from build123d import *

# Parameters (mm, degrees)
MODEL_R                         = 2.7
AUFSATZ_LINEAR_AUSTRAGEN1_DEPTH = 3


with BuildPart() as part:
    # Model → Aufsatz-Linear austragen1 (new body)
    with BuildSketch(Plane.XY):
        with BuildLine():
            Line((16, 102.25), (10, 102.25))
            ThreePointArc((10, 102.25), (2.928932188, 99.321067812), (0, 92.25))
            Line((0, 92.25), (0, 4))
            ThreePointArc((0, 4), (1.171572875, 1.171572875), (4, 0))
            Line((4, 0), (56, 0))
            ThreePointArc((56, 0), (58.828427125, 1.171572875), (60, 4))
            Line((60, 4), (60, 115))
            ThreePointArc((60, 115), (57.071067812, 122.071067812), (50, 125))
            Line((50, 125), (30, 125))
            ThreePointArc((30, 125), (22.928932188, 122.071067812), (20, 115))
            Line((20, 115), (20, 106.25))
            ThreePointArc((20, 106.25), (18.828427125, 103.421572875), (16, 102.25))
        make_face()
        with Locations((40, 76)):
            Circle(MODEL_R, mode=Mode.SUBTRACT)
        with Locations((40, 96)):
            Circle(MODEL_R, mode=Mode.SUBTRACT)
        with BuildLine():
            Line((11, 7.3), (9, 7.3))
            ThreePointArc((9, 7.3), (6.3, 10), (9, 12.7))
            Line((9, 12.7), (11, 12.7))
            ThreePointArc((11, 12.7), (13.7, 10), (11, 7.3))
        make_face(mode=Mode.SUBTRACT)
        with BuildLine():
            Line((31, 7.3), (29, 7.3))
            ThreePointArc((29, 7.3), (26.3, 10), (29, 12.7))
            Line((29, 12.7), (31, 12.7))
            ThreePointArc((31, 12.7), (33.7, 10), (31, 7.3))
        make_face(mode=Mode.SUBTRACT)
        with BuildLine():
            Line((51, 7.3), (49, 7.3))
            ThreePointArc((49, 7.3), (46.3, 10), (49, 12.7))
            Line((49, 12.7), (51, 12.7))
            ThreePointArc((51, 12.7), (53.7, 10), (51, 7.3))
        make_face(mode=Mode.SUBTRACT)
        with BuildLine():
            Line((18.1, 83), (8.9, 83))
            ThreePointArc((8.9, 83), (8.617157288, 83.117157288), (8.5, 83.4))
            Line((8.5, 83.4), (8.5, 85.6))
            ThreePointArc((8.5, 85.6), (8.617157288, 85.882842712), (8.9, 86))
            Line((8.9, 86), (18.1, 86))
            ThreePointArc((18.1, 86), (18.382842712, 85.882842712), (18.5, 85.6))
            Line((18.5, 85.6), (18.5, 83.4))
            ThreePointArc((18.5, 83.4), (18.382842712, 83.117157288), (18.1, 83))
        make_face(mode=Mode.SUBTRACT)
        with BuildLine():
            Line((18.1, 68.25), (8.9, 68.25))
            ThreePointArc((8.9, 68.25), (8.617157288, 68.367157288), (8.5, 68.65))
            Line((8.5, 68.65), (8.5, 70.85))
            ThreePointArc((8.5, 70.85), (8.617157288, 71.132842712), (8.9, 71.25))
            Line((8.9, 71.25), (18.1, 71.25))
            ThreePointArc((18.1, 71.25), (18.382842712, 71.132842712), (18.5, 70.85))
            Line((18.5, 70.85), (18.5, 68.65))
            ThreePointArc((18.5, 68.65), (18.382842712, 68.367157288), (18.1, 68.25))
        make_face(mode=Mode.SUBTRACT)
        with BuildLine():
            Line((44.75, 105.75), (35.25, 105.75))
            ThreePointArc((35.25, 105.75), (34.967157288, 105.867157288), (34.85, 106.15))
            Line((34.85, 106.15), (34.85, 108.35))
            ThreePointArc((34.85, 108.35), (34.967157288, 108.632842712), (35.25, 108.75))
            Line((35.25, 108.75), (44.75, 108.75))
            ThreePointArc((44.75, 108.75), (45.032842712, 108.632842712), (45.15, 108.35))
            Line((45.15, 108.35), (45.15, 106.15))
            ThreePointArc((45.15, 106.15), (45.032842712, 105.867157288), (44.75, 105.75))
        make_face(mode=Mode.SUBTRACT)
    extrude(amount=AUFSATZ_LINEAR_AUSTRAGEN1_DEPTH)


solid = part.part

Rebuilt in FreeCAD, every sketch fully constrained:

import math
import FreeCAD as App
import Part
import Sketcher

V = App.Vector

doc = App.newDocument("Part")
body = doc.addObject("PartDesign::Body", "Body")

# Sketch on XY plane
sketch1 = body.newObject("Sketcher::SketchObject", "Sketch")
sketch1.AttachmentSupport = (doc.getObject("XY_Plane"), [""])
sketch1.MapMode = "FlatFace"
sketch1.addGeometry([
    Part.LineSegment(V(16, 102.25, 0), V(10, 102.25, 0)),  # 0
    Part.ArcOfCircle(Part.Circle(V(10, 92.25, 0), V(0, 0, 1), 10), math.radians(90), math.radians(180)),  # 1
    Part.LineSegment(V(0, 92.25, 0), V(0, 4, 0)),  # 2
    Part.ArcOfCircle(Part.Circle(V(4, 4, 0), V(0, 0, 1), 4), math.radians(180), math.radians(270)),  # 3
    Part.LineSegment(V(4, 0, 0), V(56, 0, 0)),  # 4
    Part.ArcOfCircle(Part.Circle(V(56, 4, 0), V(0, 0, 1), 4), math.radians(-90), math.radians(0)),  # 5
    Part.LineSegment(V(60, 4, 0), V(60, 115, 0)),  # 6
    Part.ArcOfCircle(Part.Circle(V(50, 115, 0), V(0, 0, 1), 10), math.radians(0), math.radians(90)),  # 7
    Part.LineSegment(V(50, 125, 0), V(30, 125, 0)),  # 8
    Part.ArcOfCircle(Part.Circle(V(30, 115, 0), V(0, 0, 1), 10), math.radians(90), math.radians(180)),  # 9
    Part.LineSegment(V(20, 115, 0), V(20, 106.25, 0)),  # 10
    Part.ArcOfCircle(Part.Circle(V(16, 106.25, 0), V(0, 0, 1), 4), math.radians(-90), math.radians(0)),  # 11
    Part.ArcOfCircle(Part.Circle(V(11, 10, 0), V(0, 0, 1), 2.7), math.radians(-90), math.radians(90)),  # 12
    Part.LineSegment(V(11, 7.3, 0), V(9, 7.3, 0)),  # 13
    Part.ArcOfCircle(Part.Circle(V(9, 10, 0), V(0, 0, 1), 2.7), math.radians(90), math.radians(270)),  # 14
    Part.LineSegment(V(9, 12.7, 0), V(11, 12.7, 0)),  # 15
    Part.ArcOfCircle(Part.Circle(V(31, 10, 0), V(0, 0, 1), 2.7), math.radians(-90), math.radians(90)),  # 16
    Part.LineSegment(V(31, 7.3, 0), V(29, 7.3, 0)),  # 17
    Part.ArcOfCircle(Part.Circle(V(29, 10, 0), V(0, 0, 1), 2.7), math.radians(90), math.radians(270)),  # 18
    Part.LineSegment(V(29, 12.7, 0), V(31, 12.7, 0)),  # 19
    Part.ArcOfCircle(Part.Circle(V(51, 10, 0), V(0, 0, 1), 2.7), math.radians(-90), math.radians(90)),  # 20
    Part.LineSegment(V(51, 7.3, 0), V(49, 7.3, 0)),  # 21
    Part.ArcOfCircle(Part.Circle(V(49, 10, 0), V(0, 0, 1), 2.7), math.radians(90), math.radians(270)),  # 22
    Part.LineSegment(V(49, 12.7, 0), V(51, 12.7, 0)),  # 23
    Part.ArcOfCircle(Part.Circle(V(18.1, 68.65, 0), V(0, 0, 1), 0.4), math.radians(-90), math.radians(0)),  # 24
    Part.LineSegment(V(18.1, 68.25, 0), V(8.9, 68.25, 0)),  # 25
    Part.ArcOfCircle(Part.Circle(V(8.9, 68.65, 0), V(0, 0, 1), 0.4), math.radians(-180), math.radians(-90)),  # 26
    Part.LineSegment(V(8.5, 68.65, 0), V(8.5, 70.85, 0)),  # 27
    Part.ArcOfCircle(Part.Circle(V(8.9, 70.85, 0), V(0, 0, 1), 0.4), math.radians(90), math.radians(180)),  # 28
    Part.LineSegment(V(8.9, 71.25, 0), V(18.1, 71.25, 0)),  # 29
    Part.ArcOfCircle(Part.Circle(V(18.1, 70.85, 0), V(0, 0, 1), 0.4), math.radians(0), math.radians(90)),  # 30
    Part.LineSegment(V(18.5, 70.85, 0), V(18.5, 68.65, 0)),  # 31
    Part.ArcOfCircle(Part.Circle(V(18.1, 83.4, 0), V(0, 0, 1), 0.4), math.radians(-90), math.radians(0)),  # 32
    Part.LineSegment(V(18.1, 83, 0), V(8.9, 83, 0)),  # 33
    Part.ArcOfCircle(Part.Circle(V(8.9, 83.4, 0), V(0, 0, 1), 0.4), math.radians(-180), math.radians(-90)),  # 34
    Part.LineSegment(V(8.5, 83.4, 0), V(8.5, 85.6, 0)),  # 35
    Part.ArcOfCircle(Part.Circle(V(8.9, 85.6, 0), V(0, 0, 1), 0.4), math.radians(90), math.radians(180)),  # 36
    Part.LineSegment(V(8.9, 86, 0), V(18.1, 86, 0)),  # 37
    Part.ArcOfCircle(Part.Circle(V(18.1, 85.6, 0), V(0, 0, 1), 0.4), math.radians(0), math.radians(90)),  # 38
    Part.LineSegment(V(18.5, 85.6, 0), V(18.5, 83.4, 0)),  # 39
    Part.Circle(V(40, 76, 0), V(0, 0, 1), 2.7),  # 40
    Part.Circle(V(40, 96, 0), V(0, 0, 1), 2.7),  # 41
    Part.ArcOfCircle(Part.Circle(V(44.75, 106.15, 0), V(0, 0, 1), 0.4), math.radians(-90), math.radians(0)),  # 42
    Part.LineSegment(V(44.75, 105.75, 0), V(35.25, 105.75, 0)),  # 43
    Part.ArcOfCircle(Part.Circle(V(35.25, 106.15, 0), V(0, 0, 1), 0.4), math.radians(-180), math.radians(-90)),  # 44
    Part.LineSegment(V(34.85, 106.15, 0), V(34.85, 108.35, 0)),  # 45
    Part.ArcOfCircle(Part.Circle(V(35.25, 108.35, 0), V(0, 0, 1), 0.4), math.radians(90), math.radians(180)),  # 46
    Part.LineSegment(V(35.25, 108.75, 0), V(44.75, 108.75, 0)),  # 47
    Part.ArcOfCircle(Part.Circle(V(44.75, 108.35, 0), V(0, 0, 1), 0.4), math.radians(0), math.radians(90)),  # 48
    Part.LineSegment(V(45.15, 108.35, 0), V(45.15, 106.15, 0)),  # 49
], False)
sketch1.addConstraint([
    Sketcher.Constraint("Tangent", 0, 2, 1, 1),
    Sketcher.Constraint("Tangent", 1, 2, 2, 1),
    Sketcher.Constraint("Tangent", 2, 2, 3, 1),
    Sketcher.Constraint("Tangent", 3, 2, 4, 1),
    Sketcher.Constraint("Tangent", 4, 2, 5, 1),
    Sketcher.Constraint("Tangent", 5, 2, 6, 1),
    Sketcher.Constraint("Tangent", 6, 2, 7, 1),
    Sketcher.Constraint("Tangent", 7, 2, 8, 1),
    Sketcher.Constraint("Tangent", 8, 2, 9, 1),
    Sketcher.Constraint("Tangent", 9, 2, 10, 1),
    Sketcher.Constraint("Tangent", 10, 2, 11, 2),
    Sketcher.Constraint("Tangent", 11, 1, 0, 1),
    Sketcher.Constraint("Tangent", 12, 1, 13, 1),
    Sketcher.Constraint("Tangent", 13, 2, 14, 2),
    Sketcher.Constraint("Tangent", 14, 1, 15, 1),
    Sketcher.Constraint("Tangent", 15, 2, 12, 2),
    Sketcher.Constraint("Tangent", 16, 1, 17, 1),
    Sketcher.Constraint("Tangent", 17, 2, 18, 2),
    Sketcher.Constraint("Tangent", 18, 1, 19, 1),
    Sketcher.Constraint("Tangent", 19, 2, 16, 2),
    Sketcher.Constraint("Tangent", 20, 1, 21, 1),
    Sketcher.Constraint("Tangent", 21, 2, 22, 2),
    Sketcher.Constraint("Tangent", 22, 1, 23, 1),
    Sketcher.Constraint("Tangent", 23, 2, 20, 2),
    Sketcher.Constraint("Tangent", 24, 1, 25, 1),
    Sketcher.Constraint("Tangent", 25, 2, 26, 2),
    Sketcher.Constraint("Tangent", 26, 1, 27, 1),
    Sketcher.Constraint("Tangent", 27, 2, 28, 2),
    Sketcher.Constraint("Tangent", 28, 1, 29, 1),
    Sketcher.Constraint("Tangent", 29, 2, 30, 2),
    Sketcher.Constraint("Tangent", 30, 1, 31, 1),
    Sketcher.Constraint("Tangent", 31, 2, 24, 2),
    Sketcher.Constraint("Tangent", 32, 1, 33, 1),
    Sketcher.Constraint("Tangent", 33, 2, 34, 2),
    Sketcher.Constraint("Tangent", 34, 1, 35, 1),
    Sketcher.Constraint("Tangent", 35, 2, 36, 2),
    Sketcher.Constraint("Tangent", 36, 1, 37, 1),
    Sketcher.Constraint("Tangent", 37, 2, 38, 2),
    Sketcher.Constraint("Tangent", 38, 1, 39, 1),
    Sketcher.Constraint("Tangent", 39, 2, 32, 2),
    Sketcher.Constraint("Tangent", 42, 1, 43, 1),
    Sketcher.Constraint("Tangent", 43, 2, 44, 2),
    Sketcher.Constraint("Tangent", 44, 1, 45, 1),
    Sketcher.Constraint("Tangent", 45, 2, 46, 2),
    Sketcher.Constraint("Tangent", 46, 1, 47, 1),
    Sketcher.Constraint("Tangent", 47, 2, 48, 2),
    Sketcher.Constraint("Tangent", 48, 1, 49, 1),
    Sketcher.Constraint("Tangent", 49, 2, 42, 2),
    Sketcher.Constraint("Horizontal", 0),
    Sketcher.Constraint("Vertical", 2),
    Sketcher.Constraint("Horizontal", 4),
    Sketcher.Constraint("Vertical", 6),
    Sketcher.Constraint("Horizontal", 8),
    Sketcher.Constraint("Vertical", 10),
    Sketcher.Constraint("Horizontal", 13),
    Sketcher.Constraint("Horizontal", 15),
    Sketcher.Constraint("Horizontal", 17),
    Sketcher.Constraint("Horizontal", 19),
    Sketcher.Constraint("Horizontal", 21),
    Sketcher.Constraint("Horizontal", 23),
    Sketcher.Constraint("Horizontal", 25),
    Sketcher.Constraint("Vertical", 27),
    Sketcher.Constraint("Horizontal", 29),
    Sketcher.Constraint("Vertical", 31),
    Sketcher.Constraint("Horizontal", 33),
    Sketcher.Constraint("Vertical", 35),
    Sketcher.Constraint("Horizontal", 37),
    Sketcher.Constraint("Vertical", 39),
    Sketcher.Constraint("Horizontal", 43),
    Sketcher.Constraint("Vertical", 45),
    Sketcher.Constraint("Horizontal", 47),
    Sketcher.Constraint("Vertical", 49),
    Sketcher.Constraint("Equal", 3, 5),
    Sketcher.Constraint("Equal", 1, 7),
    Sketcher.Constraint("Equal", 7, 9),
    Sketcher.Constraint("Equal", 5, 11),
    Sketcher.Constraint("Equal", 14, 16),
    Sketcher.Constraint("Equal", 18, 20),
    Sketcher.Constraint("Equal", 24, 26),
    Sketcher.Constraint("Equal", 26, 28),
    Sketcher.Constraint("Equal", 28, 30),
    Sketcher.Constraint("Equal", 30, 32),
    Sketcher.Constraint("Equal", 32, 34),
    Sketcher.Constraint("Equal", 34, 36),
    Sketcher.Constraint("Equal", 36, 38),
    Sketcher.Constraint("Equal", 22, 40),
    Sketcher.Constraint("Equal", 40, 41),
    Sketcher.Constraint("Equal", 38, 42),
    Sketcher.Constraint("Equal", 42, 44),
    Sketcher.Constraint("Equal", 44, 46),
    Sketcher.Constraint("Equal", 46, 48),
    Sketcher.Constraint("PointOnObject", 1, 2, -2),
    Sketcher.Constraint("PointOnObject", 3, 2, -1),
    Sketcher.Constraint("Horizontal", 14, 3, 16, 3),
    Sketcher.Constraint("Horizontal", 18, 3, 20, 3),
    Sketcher.Constraint("Vertical", 30, 3, 32, 3),
    Sketcher.Constraint("Vertical", 28, 3, 34, 3),
    Sketcher.Constraint("Vertical", 40, 3, 41, 3),
    Sketcher.Constraint("Equal", 15, 17),
    Sketcher.Constraint("Equal", 19, 21),
    Sketcher.Constraint("Equal", 31, 35),
    Sketcher.Constraint("Equal", 39, 45),
    Sketcher.Constraint("Radius", 1, 10.0),
    Sketcher.Constraint("Radius", 3, 4.0),
    Sketcher.Constraint("Diameter", 40, 5.4),
    Sketcher.Constraint("Radius", 24, 0.4),
    Sketcher.Constraint("DistanceX", 0, 2, 0, 1, 6.0),
    Sketcher.Constraint("DistanceX", 4, 1, 4, 2, 52.0),
    Sketcher.Constraint("DistanceX", 13, 2, 13, 1, 2.0),
    Sketcher.Constraint("DistanceY", 6, 1, 6, 2, 111.0),
    Sketcher.Constraint("DistanceX", 25, 2, 25, 1, 9.2),
    Sketcher.Constraint("DistanceX", 43, 2, 43, 1, 9.5),
    Sketcher.Constraint("DistanceY", 27, 1, 27, 2, 2.2),
    Sketcher.Constraint("DistanceX", -1, 1, 12, 3, 11.0),
    Sketcher.Constraint("DistanceY", -1, 1, 12, 3, 10.0),
    Sketcher.Constraint("DistanceX", -1, 1, 16, 3, 31.0),
    Sketcher.Constraint("DistanceX", -1, 1, 20, 3, 51.0),
    Sketcher.Constraint("DistanceX", -1, 1, 40, 3, 40.0),
    Sketcher.Constraint("DistanceY", -1, 1, 40, 3, 76.0),
    Sketcher.Constraint("DistanceY", -1, 1, 41, 3, 96.0),
    Sketcher.Constraint("DistanceY", -1, 1, 32, 1, 83.0),
    Sketcher.Constraint("DistanceY", 2, 2, 2, 1, 88.25),
    Sketcher.Constraint("DistanceX", -1, 1, 24, 3, 18.1),
    Sketcher.Constraint("DistanceY", -1, 1, 24, 3, 68.65),
    Sketcher.Constraint("DistanceX", -1, 1, 42, 3, 44.75),
    Sketcher.Constraint("DistanceY", -1, 1, 42, 3, 106.15),
])
pad1 = body.newObject("PartDesign::Pad", "Pad")
pad1.Profile = sketch1
pad1.Length = 3

doc.recompute()
